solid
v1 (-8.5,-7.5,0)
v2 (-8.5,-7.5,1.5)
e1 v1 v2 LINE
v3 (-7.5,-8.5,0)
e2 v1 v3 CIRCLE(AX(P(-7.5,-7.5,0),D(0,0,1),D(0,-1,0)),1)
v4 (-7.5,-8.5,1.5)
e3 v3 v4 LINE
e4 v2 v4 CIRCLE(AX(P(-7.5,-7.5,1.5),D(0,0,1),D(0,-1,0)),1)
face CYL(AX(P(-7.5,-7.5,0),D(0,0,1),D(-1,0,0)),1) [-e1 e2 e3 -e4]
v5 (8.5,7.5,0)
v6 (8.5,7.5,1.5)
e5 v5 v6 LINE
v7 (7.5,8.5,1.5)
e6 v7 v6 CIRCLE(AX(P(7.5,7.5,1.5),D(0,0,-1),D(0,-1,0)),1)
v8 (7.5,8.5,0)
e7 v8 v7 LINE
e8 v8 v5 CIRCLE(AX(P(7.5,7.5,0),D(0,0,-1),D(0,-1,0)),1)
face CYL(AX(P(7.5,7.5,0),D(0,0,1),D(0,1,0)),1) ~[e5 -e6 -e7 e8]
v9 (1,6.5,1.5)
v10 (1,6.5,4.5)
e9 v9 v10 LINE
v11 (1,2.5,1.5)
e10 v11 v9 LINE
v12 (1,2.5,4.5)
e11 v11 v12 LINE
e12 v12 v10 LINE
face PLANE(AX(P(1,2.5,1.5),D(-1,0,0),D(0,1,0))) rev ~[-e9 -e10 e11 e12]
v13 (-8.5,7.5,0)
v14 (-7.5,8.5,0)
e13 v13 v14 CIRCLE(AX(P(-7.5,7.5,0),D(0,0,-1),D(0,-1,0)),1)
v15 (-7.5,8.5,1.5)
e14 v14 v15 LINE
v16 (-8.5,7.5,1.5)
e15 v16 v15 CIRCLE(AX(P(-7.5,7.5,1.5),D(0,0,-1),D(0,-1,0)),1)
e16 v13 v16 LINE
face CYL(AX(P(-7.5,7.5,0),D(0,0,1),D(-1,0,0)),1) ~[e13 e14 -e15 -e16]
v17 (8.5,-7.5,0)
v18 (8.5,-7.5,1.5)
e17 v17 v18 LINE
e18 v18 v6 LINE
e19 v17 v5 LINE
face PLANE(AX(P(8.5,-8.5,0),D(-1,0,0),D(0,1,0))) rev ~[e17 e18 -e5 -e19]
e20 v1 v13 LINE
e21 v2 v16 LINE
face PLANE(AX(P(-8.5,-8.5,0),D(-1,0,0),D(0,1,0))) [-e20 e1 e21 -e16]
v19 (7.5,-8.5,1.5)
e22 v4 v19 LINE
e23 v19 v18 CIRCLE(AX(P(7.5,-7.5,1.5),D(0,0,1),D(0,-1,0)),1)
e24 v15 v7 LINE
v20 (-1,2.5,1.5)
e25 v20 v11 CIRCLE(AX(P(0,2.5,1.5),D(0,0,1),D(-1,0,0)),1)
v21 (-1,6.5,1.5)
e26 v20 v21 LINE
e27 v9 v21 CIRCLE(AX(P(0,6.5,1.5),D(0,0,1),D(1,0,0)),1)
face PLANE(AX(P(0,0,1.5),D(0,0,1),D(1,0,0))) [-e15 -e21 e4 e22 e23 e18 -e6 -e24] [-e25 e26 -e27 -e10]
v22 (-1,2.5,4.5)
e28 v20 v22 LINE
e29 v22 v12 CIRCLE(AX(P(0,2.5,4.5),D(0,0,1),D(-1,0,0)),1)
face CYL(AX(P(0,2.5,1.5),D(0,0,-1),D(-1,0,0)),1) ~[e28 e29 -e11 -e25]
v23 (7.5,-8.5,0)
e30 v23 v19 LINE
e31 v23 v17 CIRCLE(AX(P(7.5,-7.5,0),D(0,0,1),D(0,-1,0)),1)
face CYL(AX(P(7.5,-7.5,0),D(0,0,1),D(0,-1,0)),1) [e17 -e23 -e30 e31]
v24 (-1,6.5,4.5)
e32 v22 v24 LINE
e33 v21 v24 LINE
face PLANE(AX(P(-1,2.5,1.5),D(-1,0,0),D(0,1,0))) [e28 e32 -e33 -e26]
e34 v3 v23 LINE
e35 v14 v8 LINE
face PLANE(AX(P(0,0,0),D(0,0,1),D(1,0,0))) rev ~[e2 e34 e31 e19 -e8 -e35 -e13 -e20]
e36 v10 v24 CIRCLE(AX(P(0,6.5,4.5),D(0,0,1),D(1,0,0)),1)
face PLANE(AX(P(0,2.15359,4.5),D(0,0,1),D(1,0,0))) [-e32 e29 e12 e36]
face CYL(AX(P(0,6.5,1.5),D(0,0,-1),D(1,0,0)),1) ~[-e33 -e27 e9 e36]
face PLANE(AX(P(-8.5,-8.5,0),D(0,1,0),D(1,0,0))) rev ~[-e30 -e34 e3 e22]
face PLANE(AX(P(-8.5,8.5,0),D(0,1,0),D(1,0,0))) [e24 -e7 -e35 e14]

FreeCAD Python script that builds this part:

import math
import FreeCAD as App
import Part
import Sketcher


def edges_at(feature, points):
    """Names of the edges that pass closest to the given points."""
    edges = feature.Shape.Edges
    near = lambda p: min(range(len(edges)), key=lambda i: edges[i].distToShape(Part.Vertex(*p))[0])
    return sorted({f"Edge{near(p) + 1}" for p in points})

doc = App.newDocument("Part")
body = doc.addObject("PartDesign::Body", "Body")

sketch1 = body.newObject("Sketcher::SketchObject", "Sketch")
sketch1.AttachmentSupport = (doc.getObject("XY_Plane"), [""])
sketch1.MapMode = "FlatFace"
sketch1.addGeometry([
    Part.LineSegment(App.Vector(-8, 8, 0), App.Vector(-8, -8, 0)),
    Part.LineSegment(App.Vector(-8, -8, 0), App.Vector(8, -8, 0)),
    Part.LineSegment(App.Vector(8, -8, 0), App.Vector(8, 8, 0)),
    Part.LineSegment(App.Vector(8, 8, 0), App.Vector(-8, 8, 0)),
], False)
sketch1.addConstraint([
    Sketcher.Constraint("Coincident", 0, 2, 1, 1),
    Sketcher.Constraint("Coincident", 1, 2, 2, 1),
    Sketcher.Constraint("Coincident", 2, 2, 3, 1),
    Sketcher.Constraint("Coincident", 3, 2, 0, 1),
    Sketcher.Constraint("Vertical", 0),
    Sketcher.Constraint("Horizontal", 1),
    Sketcher.Constraint("Vertical", 2),
    Sketcher.Constraint("Horizontal", 3),
    Sketcher.Constraint("Symmetric", 0, 2, 2, 2, -1, 1),
    Sketcher.Constraint("Equal", 3, 0),
    Sketcher.Constraint("DistanceX", 1, 1, 1, 2, 17.0),
])
pad1 = body.newObject("PartDesign::Pad", "Pad")
pad1.Profile = sketch1
pad1.Length = 1.5

sketch2 = body.newObject("Sketcher::SketchObject", "Sketch001")
sketch2.AttachmentSupport = (doc.getObject("XY_Plane"), [""])
sketch2.MapMode = "FlatFace"
sketch2.AttachmentOffset = App.Placement(App.Vector(0, 0, 1.5), App.Rotation())
sketch2.addGeometry([
    Part.ArcOfCircle(Part.Circle(App.Vector(0, 2.5, 0), App.Vector(0, 0, 1), 1), math.radians(180), math.radians(360)),
    Part.LineSegment(App.Vector(1, 2.5, 0), App.Vector(1, 6.5, 0)),
    Part.ArcOfCircle(Part.Circle(App.Vector(0, 6.5, 0), App.Vector(0, 0, 1), 1), math.radians(0), math.radians(180)),
    Part.LineSegment(App.Vector(-1, 6.5, 0), App.Vector(-1, 2.5, 0)),
], False)
sketch2.addConstraint([
    Sketcher.Constraint("Tangent", 0, 2, 1, 1),
    Sketcher.Constraint("Tangent", 1, 2, 2, 1),
    Sketcher.Constraint("Tangent", 2, 2, 3, 1),
    Sketcher.Constraint("Tangent", 3, 2, 0, 1),
    Sketcher.Constraint("Vertical", 1),
    Sketcher.Constraint("Vertical", 3),
    Sketcher.Constraint("PointOnObject", 0, 3, -2),
    Sketcher.Constraint("Radius", 0, 1.0),
    Sketcher.Constraint("DistanceY", 1, 1, 1, 2, 4.0),
    Sketcher.Constraint("DistanceY", -1, 1, 0, 3, 2.5),
])
pad2 = body.newObject("PartDesign::Pad", "Pad001")
pad2.Profile = sketch2
pad2.Length = 3
doc.recompute()

fillet = body.newObject("PartDesign::Fillet", "Fillet")
fillet.Base = (pad2, edges_at(pad2, [
    (-8.5, 8.5, 0.75),
    (-8.5, -8.5, 0.75),
    (8.5, 8.5, 0.75),
    (8.5, -8.5, 0.75),
]))
fillet.Radius = 1

doc.recompute()
